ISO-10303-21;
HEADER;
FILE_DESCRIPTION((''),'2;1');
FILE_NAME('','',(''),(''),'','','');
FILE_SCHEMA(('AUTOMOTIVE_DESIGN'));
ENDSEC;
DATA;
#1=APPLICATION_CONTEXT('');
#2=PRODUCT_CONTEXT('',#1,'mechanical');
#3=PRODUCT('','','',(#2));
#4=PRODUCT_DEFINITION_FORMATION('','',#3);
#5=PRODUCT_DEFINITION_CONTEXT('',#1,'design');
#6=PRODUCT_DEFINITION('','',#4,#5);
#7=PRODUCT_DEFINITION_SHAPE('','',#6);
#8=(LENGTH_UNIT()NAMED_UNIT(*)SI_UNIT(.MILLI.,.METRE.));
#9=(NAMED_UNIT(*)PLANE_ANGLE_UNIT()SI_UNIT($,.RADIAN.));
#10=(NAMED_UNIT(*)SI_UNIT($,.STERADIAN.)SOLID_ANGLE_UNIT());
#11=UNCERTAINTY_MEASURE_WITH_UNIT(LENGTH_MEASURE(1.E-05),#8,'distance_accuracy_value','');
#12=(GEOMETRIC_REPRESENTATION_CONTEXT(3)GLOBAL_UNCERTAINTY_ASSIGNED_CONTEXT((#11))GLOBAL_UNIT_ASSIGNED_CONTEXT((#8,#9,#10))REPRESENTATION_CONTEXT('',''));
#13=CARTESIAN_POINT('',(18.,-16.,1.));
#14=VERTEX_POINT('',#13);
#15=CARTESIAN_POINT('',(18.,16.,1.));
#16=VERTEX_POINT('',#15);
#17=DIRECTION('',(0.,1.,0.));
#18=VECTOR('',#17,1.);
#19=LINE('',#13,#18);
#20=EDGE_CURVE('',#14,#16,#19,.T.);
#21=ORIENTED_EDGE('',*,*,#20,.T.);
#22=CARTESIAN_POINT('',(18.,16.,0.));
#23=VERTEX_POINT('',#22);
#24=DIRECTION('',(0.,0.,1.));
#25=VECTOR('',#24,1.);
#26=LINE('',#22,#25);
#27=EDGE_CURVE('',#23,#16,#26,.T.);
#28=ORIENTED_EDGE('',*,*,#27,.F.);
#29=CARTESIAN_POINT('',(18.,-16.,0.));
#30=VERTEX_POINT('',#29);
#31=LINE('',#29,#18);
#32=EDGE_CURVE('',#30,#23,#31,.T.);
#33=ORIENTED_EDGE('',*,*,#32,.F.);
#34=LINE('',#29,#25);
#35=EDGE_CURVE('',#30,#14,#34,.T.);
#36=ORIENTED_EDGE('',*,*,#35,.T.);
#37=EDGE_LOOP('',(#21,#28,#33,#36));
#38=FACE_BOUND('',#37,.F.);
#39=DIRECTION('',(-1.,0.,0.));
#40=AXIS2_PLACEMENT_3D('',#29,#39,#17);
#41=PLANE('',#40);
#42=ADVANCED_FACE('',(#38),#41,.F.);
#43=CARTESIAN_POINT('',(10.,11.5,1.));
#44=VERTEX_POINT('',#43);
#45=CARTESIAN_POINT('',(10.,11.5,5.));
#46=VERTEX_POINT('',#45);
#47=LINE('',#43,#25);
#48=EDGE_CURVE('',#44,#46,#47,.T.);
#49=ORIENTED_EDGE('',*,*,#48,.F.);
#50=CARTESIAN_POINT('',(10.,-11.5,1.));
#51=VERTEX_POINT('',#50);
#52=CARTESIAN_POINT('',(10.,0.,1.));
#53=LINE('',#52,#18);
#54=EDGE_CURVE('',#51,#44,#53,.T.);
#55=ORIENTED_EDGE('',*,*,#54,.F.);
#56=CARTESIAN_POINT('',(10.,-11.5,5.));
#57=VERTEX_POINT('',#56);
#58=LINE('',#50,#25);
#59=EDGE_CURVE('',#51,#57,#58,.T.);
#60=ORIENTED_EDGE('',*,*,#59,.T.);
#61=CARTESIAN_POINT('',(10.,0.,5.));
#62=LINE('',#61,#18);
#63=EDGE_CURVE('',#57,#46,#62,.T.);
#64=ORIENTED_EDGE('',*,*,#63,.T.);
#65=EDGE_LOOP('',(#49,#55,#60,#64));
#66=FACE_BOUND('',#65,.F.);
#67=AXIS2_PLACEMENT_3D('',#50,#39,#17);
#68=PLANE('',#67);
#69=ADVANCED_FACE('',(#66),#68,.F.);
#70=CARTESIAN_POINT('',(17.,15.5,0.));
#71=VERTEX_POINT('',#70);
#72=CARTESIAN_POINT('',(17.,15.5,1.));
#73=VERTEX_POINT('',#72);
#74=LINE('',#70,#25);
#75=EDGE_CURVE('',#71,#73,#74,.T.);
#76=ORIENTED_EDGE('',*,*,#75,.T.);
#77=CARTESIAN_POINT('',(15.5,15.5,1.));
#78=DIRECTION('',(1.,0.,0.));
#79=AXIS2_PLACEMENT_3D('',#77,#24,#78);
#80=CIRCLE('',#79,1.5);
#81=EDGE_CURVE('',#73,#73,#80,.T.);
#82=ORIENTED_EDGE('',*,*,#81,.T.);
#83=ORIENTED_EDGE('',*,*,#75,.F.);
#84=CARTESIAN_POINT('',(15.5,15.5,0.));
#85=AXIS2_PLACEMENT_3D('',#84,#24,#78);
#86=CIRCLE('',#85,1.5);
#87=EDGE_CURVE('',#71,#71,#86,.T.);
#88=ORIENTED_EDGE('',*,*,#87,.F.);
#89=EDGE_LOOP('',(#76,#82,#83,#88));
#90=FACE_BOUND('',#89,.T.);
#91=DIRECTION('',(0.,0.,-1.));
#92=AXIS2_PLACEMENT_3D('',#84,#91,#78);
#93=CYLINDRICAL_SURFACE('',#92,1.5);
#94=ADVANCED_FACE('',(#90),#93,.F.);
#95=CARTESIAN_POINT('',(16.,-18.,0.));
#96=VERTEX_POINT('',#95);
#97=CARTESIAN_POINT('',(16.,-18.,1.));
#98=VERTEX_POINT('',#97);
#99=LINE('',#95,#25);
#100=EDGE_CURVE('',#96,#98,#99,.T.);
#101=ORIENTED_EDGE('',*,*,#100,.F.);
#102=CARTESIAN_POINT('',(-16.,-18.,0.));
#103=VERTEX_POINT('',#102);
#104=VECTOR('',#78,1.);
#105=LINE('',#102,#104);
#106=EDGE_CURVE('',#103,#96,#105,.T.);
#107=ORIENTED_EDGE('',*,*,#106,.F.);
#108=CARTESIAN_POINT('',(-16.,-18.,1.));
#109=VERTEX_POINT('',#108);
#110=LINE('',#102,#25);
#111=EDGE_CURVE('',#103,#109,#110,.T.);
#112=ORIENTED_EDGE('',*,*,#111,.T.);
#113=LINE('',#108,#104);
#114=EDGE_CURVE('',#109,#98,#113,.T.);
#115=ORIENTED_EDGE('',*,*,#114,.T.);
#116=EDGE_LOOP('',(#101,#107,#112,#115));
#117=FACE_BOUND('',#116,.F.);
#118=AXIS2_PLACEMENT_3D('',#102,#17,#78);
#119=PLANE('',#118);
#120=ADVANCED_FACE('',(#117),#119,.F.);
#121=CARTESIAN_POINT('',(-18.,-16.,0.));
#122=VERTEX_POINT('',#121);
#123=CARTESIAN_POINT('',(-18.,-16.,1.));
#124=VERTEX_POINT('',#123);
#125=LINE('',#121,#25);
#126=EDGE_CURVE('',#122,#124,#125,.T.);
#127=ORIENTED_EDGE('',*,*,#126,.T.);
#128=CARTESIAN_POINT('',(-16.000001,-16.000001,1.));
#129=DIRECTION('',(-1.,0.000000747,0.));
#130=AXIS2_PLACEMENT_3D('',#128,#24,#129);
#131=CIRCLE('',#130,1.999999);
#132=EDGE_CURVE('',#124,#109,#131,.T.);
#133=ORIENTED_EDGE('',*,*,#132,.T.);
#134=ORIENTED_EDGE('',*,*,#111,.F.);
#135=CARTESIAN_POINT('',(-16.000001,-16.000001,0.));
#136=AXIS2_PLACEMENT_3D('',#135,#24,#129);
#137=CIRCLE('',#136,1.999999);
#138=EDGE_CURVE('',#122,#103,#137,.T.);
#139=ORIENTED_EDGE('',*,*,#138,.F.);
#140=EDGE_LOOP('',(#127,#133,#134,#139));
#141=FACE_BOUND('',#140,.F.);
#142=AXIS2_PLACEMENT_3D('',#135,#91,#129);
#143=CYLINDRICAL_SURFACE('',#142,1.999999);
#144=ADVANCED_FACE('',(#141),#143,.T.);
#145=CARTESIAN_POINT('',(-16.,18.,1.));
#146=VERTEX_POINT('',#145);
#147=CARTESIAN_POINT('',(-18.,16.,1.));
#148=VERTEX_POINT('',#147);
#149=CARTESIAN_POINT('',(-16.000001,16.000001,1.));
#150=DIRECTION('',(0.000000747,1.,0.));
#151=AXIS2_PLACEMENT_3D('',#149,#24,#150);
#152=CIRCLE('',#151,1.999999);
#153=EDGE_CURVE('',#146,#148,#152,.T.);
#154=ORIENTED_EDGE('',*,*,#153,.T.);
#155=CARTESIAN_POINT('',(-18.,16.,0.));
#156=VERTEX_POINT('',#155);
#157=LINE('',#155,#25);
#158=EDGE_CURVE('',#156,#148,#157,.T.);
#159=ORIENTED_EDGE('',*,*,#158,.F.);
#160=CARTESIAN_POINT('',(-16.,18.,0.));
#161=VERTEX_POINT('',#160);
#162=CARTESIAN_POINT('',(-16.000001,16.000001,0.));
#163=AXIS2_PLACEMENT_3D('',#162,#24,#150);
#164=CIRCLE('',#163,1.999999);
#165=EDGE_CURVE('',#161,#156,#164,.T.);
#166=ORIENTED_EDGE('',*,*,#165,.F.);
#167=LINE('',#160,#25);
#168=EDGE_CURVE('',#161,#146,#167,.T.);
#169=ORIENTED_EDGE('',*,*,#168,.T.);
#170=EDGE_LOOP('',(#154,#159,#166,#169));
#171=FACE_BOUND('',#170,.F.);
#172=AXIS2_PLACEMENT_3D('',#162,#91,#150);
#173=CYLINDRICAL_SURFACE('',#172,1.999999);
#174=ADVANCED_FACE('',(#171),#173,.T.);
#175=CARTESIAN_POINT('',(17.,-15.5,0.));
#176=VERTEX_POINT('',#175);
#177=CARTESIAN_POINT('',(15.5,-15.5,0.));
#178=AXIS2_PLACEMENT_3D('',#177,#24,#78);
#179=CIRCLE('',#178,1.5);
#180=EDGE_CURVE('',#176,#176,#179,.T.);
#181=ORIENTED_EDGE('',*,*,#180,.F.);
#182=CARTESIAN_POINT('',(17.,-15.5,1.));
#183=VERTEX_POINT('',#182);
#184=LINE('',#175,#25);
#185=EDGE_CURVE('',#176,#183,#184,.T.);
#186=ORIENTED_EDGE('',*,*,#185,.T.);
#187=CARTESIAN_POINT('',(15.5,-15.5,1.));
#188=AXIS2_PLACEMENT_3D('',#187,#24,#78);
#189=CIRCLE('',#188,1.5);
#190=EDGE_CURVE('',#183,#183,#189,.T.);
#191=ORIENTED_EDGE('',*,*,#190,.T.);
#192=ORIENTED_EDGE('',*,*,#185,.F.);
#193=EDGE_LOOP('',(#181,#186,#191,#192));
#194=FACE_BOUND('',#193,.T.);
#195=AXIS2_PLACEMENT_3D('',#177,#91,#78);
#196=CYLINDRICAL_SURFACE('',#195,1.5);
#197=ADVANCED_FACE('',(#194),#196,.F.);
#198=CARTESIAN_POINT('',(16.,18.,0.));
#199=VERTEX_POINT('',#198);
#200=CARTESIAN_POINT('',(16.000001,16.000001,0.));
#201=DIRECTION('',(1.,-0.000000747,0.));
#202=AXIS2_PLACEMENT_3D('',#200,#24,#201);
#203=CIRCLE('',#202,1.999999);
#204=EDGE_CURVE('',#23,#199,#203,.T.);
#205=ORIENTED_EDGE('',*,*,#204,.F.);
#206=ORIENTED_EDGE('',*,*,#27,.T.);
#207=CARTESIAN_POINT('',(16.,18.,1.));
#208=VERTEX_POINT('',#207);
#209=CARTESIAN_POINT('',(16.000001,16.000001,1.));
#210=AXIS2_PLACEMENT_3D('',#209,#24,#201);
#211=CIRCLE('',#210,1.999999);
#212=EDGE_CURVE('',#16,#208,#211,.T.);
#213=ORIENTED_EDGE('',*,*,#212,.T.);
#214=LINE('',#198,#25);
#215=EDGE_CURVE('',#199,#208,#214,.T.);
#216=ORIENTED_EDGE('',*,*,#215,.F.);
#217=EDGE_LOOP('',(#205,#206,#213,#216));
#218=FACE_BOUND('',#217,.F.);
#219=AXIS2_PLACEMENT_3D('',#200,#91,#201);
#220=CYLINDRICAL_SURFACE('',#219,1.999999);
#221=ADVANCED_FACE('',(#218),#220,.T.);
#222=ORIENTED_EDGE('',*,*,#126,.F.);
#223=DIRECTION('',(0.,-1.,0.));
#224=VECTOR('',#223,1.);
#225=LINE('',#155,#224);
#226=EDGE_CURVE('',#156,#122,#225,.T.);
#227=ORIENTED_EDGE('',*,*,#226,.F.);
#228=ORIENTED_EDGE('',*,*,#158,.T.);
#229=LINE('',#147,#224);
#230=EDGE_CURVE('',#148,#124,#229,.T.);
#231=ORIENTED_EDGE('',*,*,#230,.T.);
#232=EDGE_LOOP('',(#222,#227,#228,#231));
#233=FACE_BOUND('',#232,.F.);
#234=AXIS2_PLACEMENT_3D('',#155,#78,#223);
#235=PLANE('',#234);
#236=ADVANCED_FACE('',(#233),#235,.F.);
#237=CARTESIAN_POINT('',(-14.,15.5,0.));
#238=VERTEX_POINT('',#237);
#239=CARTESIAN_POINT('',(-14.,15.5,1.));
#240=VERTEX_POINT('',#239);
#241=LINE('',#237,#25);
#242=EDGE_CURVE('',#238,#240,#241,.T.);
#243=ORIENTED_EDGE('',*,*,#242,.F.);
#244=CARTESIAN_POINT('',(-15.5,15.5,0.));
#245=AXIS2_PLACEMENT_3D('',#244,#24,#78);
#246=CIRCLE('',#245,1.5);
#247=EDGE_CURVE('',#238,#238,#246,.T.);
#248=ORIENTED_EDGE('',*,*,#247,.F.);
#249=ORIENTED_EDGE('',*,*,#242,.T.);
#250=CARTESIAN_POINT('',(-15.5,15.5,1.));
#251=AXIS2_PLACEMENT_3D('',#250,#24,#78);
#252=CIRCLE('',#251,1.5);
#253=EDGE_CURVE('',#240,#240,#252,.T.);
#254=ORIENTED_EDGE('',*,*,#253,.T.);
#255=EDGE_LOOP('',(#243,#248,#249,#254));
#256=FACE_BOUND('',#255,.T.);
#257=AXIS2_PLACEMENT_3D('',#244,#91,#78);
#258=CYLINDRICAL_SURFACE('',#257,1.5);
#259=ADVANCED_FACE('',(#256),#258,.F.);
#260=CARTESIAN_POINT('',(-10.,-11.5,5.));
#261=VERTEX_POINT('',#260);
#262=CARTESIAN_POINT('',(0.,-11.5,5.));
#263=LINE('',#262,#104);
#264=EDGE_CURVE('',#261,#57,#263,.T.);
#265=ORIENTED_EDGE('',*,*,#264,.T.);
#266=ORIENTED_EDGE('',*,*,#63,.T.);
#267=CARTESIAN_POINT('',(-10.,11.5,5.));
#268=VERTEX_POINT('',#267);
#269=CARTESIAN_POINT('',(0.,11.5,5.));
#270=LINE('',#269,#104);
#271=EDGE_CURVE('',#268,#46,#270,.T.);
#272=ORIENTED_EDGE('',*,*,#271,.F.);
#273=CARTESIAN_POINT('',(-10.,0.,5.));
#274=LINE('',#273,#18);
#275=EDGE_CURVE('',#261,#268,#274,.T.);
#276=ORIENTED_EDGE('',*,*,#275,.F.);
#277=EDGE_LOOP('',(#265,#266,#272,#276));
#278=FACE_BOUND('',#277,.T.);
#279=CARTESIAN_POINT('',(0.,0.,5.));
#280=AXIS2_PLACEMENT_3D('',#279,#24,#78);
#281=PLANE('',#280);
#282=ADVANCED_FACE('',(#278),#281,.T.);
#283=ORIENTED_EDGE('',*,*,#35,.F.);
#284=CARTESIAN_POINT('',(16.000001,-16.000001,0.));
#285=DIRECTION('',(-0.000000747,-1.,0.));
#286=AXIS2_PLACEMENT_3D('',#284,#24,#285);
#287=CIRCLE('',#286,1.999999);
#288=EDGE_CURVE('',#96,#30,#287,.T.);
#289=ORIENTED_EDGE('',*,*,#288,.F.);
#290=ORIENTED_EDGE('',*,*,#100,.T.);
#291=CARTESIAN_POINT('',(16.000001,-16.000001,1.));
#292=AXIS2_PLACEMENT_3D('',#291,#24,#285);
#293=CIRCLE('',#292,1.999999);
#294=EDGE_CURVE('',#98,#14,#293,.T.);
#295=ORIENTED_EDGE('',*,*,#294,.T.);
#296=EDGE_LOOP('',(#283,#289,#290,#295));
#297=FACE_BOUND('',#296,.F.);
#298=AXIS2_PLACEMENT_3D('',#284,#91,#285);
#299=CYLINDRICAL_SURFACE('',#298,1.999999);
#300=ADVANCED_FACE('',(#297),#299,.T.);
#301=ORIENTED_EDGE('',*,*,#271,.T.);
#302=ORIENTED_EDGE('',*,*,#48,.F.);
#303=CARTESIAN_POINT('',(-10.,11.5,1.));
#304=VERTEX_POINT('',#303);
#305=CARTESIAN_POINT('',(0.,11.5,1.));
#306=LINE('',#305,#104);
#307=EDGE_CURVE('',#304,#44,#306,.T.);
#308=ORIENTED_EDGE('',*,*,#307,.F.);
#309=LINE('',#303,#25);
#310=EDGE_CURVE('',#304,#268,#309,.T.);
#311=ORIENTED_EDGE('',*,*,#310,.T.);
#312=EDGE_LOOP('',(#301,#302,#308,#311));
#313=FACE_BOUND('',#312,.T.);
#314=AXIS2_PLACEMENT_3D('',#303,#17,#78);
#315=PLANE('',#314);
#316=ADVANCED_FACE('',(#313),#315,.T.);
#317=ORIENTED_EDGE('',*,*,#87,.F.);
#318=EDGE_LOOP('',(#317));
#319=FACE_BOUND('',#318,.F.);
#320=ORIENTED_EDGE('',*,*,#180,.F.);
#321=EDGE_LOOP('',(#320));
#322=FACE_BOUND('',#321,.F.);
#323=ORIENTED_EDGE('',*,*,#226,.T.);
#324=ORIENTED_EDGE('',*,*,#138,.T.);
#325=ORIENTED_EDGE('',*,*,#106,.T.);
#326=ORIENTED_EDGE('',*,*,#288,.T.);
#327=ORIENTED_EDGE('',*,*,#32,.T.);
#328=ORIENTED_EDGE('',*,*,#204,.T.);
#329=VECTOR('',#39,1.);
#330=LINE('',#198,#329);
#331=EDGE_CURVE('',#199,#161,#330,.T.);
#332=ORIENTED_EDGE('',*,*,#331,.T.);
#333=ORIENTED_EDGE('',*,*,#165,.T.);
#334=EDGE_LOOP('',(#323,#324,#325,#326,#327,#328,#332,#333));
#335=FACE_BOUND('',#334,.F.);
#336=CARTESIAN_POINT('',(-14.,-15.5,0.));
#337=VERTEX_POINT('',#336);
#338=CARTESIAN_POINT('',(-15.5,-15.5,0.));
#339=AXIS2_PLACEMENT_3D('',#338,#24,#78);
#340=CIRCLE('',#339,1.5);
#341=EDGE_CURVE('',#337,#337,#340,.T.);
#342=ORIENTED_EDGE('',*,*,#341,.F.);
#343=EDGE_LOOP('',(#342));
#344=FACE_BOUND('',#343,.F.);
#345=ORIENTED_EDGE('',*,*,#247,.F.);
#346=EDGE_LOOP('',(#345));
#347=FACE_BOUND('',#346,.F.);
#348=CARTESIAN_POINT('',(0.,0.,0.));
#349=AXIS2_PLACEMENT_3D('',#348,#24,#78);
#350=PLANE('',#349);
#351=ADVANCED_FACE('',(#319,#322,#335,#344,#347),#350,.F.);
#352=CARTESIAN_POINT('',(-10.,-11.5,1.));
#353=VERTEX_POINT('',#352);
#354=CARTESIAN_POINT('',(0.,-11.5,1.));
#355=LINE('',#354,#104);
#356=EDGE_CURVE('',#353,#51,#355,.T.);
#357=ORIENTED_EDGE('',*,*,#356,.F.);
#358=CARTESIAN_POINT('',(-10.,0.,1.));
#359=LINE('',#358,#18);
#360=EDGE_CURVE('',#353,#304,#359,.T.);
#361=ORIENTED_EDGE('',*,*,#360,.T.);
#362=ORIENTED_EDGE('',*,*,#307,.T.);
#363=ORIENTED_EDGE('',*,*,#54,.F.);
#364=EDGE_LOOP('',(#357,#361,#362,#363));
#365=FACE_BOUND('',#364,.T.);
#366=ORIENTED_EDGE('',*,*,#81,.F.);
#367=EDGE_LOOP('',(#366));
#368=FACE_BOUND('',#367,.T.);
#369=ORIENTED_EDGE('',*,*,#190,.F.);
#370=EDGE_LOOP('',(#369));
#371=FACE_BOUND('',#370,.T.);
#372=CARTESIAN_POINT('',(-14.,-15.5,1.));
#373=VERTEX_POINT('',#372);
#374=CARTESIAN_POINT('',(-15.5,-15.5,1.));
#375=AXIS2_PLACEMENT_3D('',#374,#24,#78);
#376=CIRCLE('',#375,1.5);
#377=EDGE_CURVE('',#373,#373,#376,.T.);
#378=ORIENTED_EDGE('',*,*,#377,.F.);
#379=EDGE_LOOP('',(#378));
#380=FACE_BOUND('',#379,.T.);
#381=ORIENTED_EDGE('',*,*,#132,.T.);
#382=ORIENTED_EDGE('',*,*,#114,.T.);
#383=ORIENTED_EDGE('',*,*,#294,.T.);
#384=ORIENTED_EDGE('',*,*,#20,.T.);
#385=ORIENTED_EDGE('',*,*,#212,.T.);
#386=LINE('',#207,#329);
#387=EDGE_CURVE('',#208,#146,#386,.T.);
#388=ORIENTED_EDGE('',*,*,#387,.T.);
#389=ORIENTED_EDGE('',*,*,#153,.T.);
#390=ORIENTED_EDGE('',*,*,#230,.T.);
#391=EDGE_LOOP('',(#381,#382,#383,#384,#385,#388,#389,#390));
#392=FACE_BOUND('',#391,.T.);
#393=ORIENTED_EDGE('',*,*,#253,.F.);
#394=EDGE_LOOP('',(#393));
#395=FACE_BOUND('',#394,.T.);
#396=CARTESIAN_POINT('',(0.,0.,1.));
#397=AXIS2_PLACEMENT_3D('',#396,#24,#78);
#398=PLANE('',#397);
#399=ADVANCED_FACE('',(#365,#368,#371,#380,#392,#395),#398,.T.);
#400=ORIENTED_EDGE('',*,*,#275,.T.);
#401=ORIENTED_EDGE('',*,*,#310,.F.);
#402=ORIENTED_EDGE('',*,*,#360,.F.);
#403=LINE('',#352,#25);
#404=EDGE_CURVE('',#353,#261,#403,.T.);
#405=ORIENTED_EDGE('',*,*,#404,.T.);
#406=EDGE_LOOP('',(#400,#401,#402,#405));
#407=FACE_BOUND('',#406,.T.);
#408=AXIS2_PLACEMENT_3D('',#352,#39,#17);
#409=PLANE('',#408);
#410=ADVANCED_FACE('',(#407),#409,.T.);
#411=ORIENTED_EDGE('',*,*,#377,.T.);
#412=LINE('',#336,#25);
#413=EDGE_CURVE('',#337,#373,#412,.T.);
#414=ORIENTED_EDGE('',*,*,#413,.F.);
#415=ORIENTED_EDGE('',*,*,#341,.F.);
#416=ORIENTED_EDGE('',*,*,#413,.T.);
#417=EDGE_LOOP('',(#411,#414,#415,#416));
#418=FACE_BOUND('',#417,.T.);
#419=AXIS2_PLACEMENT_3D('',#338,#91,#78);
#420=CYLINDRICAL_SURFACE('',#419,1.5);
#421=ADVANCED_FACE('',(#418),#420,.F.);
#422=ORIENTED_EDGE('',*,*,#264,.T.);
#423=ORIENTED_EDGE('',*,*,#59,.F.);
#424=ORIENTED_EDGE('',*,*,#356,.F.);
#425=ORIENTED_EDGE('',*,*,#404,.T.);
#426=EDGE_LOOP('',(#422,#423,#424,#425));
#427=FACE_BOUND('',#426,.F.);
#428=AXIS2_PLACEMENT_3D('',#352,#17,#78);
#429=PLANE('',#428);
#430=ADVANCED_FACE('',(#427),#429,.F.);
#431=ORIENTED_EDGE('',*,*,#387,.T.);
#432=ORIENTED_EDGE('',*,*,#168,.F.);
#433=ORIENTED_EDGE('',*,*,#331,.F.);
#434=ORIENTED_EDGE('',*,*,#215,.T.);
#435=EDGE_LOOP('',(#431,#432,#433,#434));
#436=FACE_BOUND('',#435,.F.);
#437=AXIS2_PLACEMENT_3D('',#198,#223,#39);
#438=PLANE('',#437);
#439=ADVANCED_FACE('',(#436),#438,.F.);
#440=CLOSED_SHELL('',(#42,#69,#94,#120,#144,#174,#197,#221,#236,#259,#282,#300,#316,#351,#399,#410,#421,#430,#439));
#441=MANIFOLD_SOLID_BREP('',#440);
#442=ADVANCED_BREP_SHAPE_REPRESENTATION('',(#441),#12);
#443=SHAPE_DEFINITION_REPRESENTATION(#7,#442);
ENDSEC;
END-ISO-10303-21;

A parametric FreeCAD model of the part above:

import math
import FreeCAD as App
import Part
import Sketcher
Q = App.Units.Quantity


def add_polygon(sketch, points):
    """Adds a closed chain of lines whose ends are joined by coincident constraints."""
    first, n = sketch.GeometryCount, len(points)
    for a, b in zip(points, points[1:] + points[:1]):
        sketch.addGeometry(Part.LineSegment(App.Vector(*a, 0), App.Vector(*b, 0)), False)
    for i in range(n):
        sketch.addConstraint(Sketcher.Constraint("Coincident", first + i, 2, first + (i + 1) % n, 1))

doc = App.newDocument("Part")
body = doc.addObject("PartDesign::Body", "Body")

sketch1 = body.newObject("Sketcher::SketchObject", "Sketch")
sketch1.AttachmentSupport = (doc.getObject("XY_Plane"), [""])
sketch1.MapMode = "FlatFace"
sketch1.addGeometry(Part.LineSegment(App.Vector(16, 18, 0), App.Vector(-16, 18, 0)), False)
sketch1.addGeometry(Part.ArcOfCircle(Part.Circle(App.Vector(-16.000001, 16.000001, 0), App.Vector(0, 0, 1), 1.999999), math.radians(89.999957), math.radians(180.000043)), False)
sketch1.addGeometry(Part.LineSegment(App.Vector(-18, 16, 0), App.Vector(-18, -16, 0)), False)
sketch1.addGeometry(Part.ArcOfCircle(Part.Circle(App.Vector(-16.000001, -16.000001, 0), App.Vector(0, 0, 1), 1.999999), math.radians(179.999957), math.radians(270.000043)), False)
sketch1.addGeometry(Part.LineSegment(App.Vector(-16, -18, 0), App.Vector(16, -18, 0)), False)
sketch1.addGeometry(Part.ArcOfCircle(Part.Circle(App.Vector(16.000001, -16.000001, 0), App.Vector(0, 0, 1), 1.999999), math.radians(-90.000043), math.radians(0.000043)), False)
sketch1.addGeometry(Part.LineSegment(App.Vector(18, -16, 0), App.Vector(18, 16, 0)), False)
sketch1.addGeometry(Part.ArcOfCircle(Part.Circle(App.Vector(16.000001, 16.000001, 0), App.Vector(0, 0, 1), 1.999999), math.radians(-0.000043), math.radians(90.000043)), False)
sketch1.addGeometry(Part.Circle(App.Vector(-15.5, -15.5, 0), App.Vector(0, 0, 1), 1.5), False)
sketch1.addGeometry(Part.Circle(App.Vector(15.5, -15.5, 0), App.Vector(0, 0, 1), 1.5), False)
sketch1.addGeometry(Part.Circle(App.Vector(-15.5, 15.5, 0), App.Vector(0, 0, 1), 1.5), False)
sketch1.addGeometry(Part.Circle(App.Vector(15.5, 15.5, 0), App.Vector(0, 0, 1), 1.5), False)
sketch1.addConstraint(Sketcher.Constraint("Tangent", 0, 2, 1, 1))
sketch1.addConstraint(Sketcher.Constraint("Tangent", 1, 2, 2, 1))
sketch1.addConstraint(Sketcher.Constraint("Tangent", 2, 2, 3, 1))
sketch1.addConstraint(Sketcher.Constraint("Tangent", 3, 2, 4, 1))
sketch1.addConstraint(Sketcher.Constraint("Tangent", 4, 2, 5, 1))
sketch1.addConstraint(Sketcher.Constraint("Tangent", 5, 2, 6, 1))
sketch1.addConstraint(Sketcher.Constraint("Tangent", 6, 2, 7, 1))
sketch1.addConstraint(Sketcher.Constraint("Tangent", 7, 2, 0, 1))
sketch1.addConstraint(Sketcher.Constraint("Horizontal", 0))
sketch1.addConstraint(Sketcher.Constraint("Vertical", 2))
sketch1.addConstraint(Sketcher.Constraint("Horizontal", 4))
sketch1.addConstraint(Sketcher.Constraint("Vertical", 6))
sketch1.addConstraint(Sketcher.Constraint("Equal", 1, 3))
sketch1.addConstraint(Sketcher.Constraint("Equal", 3, 5))
sketch1.addConstraint(Sketcher.Constraint("Equal", 5, 7))
sketch1.addConstraint(Sketcher.Constraint("Equal", 8, 9))
sketch1.addConstraint(Sketcher.Constraint("Equal", 9, 10))
sketch1.addConstraint(Sketcher.Constraint("Equal", 10, 11))
sketch1.addConstraint(Sketcher.Constraint("Symmetric", 1, 3, 5, 3, -1, 1))
sketch1.addConstraint(Sketcher.Constraint("Symmetric", 9, 3, 10, 3, -1, 1))
sketch1.addConstraint(Sketcher.Constraint("Symmetric", 8, 3, 11, 3, -1, 1))
sketch1.addConstraint(Sketcher.Constraint("Symmetric", 8, 3, 9, 3, -2))
sketch1.addConstraint(Sketcher.Constraint("Equal", 4, 2))
sketch1.addConstraint(Sketcher.Constraint("Diameter", 8, Q("3 mm")))
sketch1.addConstraint(Sketcher.Constraint("Radius", 1, Q("1.999999 mm")))
sketch1.addConstraint(Sketcher.Constraint("DistanceX", 0, 2, 0, 1, Q("32 mm")))
sketch1.addConstraint(Sketcher.Constraint("DistanceX", 8, 3, 9, 3, Q("31 mm")))
sketch1.addConstraint(Sketcher.Constraint("DistanceY", 8, 3, 10, 3, Q("31 mm")))
pad1 = body.newObject("PartDesign::Pad", "Pad")
pad1.Profile = sketch1
pad1.Length = 1

sketch2 = body.newObject("Sketcher::SketchObject", "Sketch001")
sketch2.AttachmentSupport = (doc.getObject("XY_Plane"), [""])
sketch2.MapMode = "FlatFace"
sketch2.AttachmentOffset = App.Placement(App.Vector(0, 0, 1), App.Rotation())
add_polygon(sketch2, [(-10, 11.5), (-10, -11.5), (10, -11.5), (10, 11.5)])
sketch2.addConstraint(Sketcher.Constraint("Vertical", 0))
sketch2.addConstraint(Sketcher.Constraint("Horizontal", 1))
sketch2.addConstraint(Sketcher.Constraint("Vertical", 2))
sketch2.addConstraint(Sketcher.Constraint("Horizontal", 3))
sketch2.addConstraint(Sketcher.Constraint("Symmetric", 0, 2, 2, 2, -1, 1))
sketch2.addConstraint(Sketcher.Constraint("DistanceX", 1, 1, 1, 2, Q("20 mm")))
sketch2.addConstraint(Sketcher.Constraint("DistanceY", 0, 2, 0, 1, Q("23 mm")))
pad2 = body.newObject("PartDesign::Pad", "Pad001")
pad2.Profile = sketch2
pad2.Length = 4

doc.recompute()
